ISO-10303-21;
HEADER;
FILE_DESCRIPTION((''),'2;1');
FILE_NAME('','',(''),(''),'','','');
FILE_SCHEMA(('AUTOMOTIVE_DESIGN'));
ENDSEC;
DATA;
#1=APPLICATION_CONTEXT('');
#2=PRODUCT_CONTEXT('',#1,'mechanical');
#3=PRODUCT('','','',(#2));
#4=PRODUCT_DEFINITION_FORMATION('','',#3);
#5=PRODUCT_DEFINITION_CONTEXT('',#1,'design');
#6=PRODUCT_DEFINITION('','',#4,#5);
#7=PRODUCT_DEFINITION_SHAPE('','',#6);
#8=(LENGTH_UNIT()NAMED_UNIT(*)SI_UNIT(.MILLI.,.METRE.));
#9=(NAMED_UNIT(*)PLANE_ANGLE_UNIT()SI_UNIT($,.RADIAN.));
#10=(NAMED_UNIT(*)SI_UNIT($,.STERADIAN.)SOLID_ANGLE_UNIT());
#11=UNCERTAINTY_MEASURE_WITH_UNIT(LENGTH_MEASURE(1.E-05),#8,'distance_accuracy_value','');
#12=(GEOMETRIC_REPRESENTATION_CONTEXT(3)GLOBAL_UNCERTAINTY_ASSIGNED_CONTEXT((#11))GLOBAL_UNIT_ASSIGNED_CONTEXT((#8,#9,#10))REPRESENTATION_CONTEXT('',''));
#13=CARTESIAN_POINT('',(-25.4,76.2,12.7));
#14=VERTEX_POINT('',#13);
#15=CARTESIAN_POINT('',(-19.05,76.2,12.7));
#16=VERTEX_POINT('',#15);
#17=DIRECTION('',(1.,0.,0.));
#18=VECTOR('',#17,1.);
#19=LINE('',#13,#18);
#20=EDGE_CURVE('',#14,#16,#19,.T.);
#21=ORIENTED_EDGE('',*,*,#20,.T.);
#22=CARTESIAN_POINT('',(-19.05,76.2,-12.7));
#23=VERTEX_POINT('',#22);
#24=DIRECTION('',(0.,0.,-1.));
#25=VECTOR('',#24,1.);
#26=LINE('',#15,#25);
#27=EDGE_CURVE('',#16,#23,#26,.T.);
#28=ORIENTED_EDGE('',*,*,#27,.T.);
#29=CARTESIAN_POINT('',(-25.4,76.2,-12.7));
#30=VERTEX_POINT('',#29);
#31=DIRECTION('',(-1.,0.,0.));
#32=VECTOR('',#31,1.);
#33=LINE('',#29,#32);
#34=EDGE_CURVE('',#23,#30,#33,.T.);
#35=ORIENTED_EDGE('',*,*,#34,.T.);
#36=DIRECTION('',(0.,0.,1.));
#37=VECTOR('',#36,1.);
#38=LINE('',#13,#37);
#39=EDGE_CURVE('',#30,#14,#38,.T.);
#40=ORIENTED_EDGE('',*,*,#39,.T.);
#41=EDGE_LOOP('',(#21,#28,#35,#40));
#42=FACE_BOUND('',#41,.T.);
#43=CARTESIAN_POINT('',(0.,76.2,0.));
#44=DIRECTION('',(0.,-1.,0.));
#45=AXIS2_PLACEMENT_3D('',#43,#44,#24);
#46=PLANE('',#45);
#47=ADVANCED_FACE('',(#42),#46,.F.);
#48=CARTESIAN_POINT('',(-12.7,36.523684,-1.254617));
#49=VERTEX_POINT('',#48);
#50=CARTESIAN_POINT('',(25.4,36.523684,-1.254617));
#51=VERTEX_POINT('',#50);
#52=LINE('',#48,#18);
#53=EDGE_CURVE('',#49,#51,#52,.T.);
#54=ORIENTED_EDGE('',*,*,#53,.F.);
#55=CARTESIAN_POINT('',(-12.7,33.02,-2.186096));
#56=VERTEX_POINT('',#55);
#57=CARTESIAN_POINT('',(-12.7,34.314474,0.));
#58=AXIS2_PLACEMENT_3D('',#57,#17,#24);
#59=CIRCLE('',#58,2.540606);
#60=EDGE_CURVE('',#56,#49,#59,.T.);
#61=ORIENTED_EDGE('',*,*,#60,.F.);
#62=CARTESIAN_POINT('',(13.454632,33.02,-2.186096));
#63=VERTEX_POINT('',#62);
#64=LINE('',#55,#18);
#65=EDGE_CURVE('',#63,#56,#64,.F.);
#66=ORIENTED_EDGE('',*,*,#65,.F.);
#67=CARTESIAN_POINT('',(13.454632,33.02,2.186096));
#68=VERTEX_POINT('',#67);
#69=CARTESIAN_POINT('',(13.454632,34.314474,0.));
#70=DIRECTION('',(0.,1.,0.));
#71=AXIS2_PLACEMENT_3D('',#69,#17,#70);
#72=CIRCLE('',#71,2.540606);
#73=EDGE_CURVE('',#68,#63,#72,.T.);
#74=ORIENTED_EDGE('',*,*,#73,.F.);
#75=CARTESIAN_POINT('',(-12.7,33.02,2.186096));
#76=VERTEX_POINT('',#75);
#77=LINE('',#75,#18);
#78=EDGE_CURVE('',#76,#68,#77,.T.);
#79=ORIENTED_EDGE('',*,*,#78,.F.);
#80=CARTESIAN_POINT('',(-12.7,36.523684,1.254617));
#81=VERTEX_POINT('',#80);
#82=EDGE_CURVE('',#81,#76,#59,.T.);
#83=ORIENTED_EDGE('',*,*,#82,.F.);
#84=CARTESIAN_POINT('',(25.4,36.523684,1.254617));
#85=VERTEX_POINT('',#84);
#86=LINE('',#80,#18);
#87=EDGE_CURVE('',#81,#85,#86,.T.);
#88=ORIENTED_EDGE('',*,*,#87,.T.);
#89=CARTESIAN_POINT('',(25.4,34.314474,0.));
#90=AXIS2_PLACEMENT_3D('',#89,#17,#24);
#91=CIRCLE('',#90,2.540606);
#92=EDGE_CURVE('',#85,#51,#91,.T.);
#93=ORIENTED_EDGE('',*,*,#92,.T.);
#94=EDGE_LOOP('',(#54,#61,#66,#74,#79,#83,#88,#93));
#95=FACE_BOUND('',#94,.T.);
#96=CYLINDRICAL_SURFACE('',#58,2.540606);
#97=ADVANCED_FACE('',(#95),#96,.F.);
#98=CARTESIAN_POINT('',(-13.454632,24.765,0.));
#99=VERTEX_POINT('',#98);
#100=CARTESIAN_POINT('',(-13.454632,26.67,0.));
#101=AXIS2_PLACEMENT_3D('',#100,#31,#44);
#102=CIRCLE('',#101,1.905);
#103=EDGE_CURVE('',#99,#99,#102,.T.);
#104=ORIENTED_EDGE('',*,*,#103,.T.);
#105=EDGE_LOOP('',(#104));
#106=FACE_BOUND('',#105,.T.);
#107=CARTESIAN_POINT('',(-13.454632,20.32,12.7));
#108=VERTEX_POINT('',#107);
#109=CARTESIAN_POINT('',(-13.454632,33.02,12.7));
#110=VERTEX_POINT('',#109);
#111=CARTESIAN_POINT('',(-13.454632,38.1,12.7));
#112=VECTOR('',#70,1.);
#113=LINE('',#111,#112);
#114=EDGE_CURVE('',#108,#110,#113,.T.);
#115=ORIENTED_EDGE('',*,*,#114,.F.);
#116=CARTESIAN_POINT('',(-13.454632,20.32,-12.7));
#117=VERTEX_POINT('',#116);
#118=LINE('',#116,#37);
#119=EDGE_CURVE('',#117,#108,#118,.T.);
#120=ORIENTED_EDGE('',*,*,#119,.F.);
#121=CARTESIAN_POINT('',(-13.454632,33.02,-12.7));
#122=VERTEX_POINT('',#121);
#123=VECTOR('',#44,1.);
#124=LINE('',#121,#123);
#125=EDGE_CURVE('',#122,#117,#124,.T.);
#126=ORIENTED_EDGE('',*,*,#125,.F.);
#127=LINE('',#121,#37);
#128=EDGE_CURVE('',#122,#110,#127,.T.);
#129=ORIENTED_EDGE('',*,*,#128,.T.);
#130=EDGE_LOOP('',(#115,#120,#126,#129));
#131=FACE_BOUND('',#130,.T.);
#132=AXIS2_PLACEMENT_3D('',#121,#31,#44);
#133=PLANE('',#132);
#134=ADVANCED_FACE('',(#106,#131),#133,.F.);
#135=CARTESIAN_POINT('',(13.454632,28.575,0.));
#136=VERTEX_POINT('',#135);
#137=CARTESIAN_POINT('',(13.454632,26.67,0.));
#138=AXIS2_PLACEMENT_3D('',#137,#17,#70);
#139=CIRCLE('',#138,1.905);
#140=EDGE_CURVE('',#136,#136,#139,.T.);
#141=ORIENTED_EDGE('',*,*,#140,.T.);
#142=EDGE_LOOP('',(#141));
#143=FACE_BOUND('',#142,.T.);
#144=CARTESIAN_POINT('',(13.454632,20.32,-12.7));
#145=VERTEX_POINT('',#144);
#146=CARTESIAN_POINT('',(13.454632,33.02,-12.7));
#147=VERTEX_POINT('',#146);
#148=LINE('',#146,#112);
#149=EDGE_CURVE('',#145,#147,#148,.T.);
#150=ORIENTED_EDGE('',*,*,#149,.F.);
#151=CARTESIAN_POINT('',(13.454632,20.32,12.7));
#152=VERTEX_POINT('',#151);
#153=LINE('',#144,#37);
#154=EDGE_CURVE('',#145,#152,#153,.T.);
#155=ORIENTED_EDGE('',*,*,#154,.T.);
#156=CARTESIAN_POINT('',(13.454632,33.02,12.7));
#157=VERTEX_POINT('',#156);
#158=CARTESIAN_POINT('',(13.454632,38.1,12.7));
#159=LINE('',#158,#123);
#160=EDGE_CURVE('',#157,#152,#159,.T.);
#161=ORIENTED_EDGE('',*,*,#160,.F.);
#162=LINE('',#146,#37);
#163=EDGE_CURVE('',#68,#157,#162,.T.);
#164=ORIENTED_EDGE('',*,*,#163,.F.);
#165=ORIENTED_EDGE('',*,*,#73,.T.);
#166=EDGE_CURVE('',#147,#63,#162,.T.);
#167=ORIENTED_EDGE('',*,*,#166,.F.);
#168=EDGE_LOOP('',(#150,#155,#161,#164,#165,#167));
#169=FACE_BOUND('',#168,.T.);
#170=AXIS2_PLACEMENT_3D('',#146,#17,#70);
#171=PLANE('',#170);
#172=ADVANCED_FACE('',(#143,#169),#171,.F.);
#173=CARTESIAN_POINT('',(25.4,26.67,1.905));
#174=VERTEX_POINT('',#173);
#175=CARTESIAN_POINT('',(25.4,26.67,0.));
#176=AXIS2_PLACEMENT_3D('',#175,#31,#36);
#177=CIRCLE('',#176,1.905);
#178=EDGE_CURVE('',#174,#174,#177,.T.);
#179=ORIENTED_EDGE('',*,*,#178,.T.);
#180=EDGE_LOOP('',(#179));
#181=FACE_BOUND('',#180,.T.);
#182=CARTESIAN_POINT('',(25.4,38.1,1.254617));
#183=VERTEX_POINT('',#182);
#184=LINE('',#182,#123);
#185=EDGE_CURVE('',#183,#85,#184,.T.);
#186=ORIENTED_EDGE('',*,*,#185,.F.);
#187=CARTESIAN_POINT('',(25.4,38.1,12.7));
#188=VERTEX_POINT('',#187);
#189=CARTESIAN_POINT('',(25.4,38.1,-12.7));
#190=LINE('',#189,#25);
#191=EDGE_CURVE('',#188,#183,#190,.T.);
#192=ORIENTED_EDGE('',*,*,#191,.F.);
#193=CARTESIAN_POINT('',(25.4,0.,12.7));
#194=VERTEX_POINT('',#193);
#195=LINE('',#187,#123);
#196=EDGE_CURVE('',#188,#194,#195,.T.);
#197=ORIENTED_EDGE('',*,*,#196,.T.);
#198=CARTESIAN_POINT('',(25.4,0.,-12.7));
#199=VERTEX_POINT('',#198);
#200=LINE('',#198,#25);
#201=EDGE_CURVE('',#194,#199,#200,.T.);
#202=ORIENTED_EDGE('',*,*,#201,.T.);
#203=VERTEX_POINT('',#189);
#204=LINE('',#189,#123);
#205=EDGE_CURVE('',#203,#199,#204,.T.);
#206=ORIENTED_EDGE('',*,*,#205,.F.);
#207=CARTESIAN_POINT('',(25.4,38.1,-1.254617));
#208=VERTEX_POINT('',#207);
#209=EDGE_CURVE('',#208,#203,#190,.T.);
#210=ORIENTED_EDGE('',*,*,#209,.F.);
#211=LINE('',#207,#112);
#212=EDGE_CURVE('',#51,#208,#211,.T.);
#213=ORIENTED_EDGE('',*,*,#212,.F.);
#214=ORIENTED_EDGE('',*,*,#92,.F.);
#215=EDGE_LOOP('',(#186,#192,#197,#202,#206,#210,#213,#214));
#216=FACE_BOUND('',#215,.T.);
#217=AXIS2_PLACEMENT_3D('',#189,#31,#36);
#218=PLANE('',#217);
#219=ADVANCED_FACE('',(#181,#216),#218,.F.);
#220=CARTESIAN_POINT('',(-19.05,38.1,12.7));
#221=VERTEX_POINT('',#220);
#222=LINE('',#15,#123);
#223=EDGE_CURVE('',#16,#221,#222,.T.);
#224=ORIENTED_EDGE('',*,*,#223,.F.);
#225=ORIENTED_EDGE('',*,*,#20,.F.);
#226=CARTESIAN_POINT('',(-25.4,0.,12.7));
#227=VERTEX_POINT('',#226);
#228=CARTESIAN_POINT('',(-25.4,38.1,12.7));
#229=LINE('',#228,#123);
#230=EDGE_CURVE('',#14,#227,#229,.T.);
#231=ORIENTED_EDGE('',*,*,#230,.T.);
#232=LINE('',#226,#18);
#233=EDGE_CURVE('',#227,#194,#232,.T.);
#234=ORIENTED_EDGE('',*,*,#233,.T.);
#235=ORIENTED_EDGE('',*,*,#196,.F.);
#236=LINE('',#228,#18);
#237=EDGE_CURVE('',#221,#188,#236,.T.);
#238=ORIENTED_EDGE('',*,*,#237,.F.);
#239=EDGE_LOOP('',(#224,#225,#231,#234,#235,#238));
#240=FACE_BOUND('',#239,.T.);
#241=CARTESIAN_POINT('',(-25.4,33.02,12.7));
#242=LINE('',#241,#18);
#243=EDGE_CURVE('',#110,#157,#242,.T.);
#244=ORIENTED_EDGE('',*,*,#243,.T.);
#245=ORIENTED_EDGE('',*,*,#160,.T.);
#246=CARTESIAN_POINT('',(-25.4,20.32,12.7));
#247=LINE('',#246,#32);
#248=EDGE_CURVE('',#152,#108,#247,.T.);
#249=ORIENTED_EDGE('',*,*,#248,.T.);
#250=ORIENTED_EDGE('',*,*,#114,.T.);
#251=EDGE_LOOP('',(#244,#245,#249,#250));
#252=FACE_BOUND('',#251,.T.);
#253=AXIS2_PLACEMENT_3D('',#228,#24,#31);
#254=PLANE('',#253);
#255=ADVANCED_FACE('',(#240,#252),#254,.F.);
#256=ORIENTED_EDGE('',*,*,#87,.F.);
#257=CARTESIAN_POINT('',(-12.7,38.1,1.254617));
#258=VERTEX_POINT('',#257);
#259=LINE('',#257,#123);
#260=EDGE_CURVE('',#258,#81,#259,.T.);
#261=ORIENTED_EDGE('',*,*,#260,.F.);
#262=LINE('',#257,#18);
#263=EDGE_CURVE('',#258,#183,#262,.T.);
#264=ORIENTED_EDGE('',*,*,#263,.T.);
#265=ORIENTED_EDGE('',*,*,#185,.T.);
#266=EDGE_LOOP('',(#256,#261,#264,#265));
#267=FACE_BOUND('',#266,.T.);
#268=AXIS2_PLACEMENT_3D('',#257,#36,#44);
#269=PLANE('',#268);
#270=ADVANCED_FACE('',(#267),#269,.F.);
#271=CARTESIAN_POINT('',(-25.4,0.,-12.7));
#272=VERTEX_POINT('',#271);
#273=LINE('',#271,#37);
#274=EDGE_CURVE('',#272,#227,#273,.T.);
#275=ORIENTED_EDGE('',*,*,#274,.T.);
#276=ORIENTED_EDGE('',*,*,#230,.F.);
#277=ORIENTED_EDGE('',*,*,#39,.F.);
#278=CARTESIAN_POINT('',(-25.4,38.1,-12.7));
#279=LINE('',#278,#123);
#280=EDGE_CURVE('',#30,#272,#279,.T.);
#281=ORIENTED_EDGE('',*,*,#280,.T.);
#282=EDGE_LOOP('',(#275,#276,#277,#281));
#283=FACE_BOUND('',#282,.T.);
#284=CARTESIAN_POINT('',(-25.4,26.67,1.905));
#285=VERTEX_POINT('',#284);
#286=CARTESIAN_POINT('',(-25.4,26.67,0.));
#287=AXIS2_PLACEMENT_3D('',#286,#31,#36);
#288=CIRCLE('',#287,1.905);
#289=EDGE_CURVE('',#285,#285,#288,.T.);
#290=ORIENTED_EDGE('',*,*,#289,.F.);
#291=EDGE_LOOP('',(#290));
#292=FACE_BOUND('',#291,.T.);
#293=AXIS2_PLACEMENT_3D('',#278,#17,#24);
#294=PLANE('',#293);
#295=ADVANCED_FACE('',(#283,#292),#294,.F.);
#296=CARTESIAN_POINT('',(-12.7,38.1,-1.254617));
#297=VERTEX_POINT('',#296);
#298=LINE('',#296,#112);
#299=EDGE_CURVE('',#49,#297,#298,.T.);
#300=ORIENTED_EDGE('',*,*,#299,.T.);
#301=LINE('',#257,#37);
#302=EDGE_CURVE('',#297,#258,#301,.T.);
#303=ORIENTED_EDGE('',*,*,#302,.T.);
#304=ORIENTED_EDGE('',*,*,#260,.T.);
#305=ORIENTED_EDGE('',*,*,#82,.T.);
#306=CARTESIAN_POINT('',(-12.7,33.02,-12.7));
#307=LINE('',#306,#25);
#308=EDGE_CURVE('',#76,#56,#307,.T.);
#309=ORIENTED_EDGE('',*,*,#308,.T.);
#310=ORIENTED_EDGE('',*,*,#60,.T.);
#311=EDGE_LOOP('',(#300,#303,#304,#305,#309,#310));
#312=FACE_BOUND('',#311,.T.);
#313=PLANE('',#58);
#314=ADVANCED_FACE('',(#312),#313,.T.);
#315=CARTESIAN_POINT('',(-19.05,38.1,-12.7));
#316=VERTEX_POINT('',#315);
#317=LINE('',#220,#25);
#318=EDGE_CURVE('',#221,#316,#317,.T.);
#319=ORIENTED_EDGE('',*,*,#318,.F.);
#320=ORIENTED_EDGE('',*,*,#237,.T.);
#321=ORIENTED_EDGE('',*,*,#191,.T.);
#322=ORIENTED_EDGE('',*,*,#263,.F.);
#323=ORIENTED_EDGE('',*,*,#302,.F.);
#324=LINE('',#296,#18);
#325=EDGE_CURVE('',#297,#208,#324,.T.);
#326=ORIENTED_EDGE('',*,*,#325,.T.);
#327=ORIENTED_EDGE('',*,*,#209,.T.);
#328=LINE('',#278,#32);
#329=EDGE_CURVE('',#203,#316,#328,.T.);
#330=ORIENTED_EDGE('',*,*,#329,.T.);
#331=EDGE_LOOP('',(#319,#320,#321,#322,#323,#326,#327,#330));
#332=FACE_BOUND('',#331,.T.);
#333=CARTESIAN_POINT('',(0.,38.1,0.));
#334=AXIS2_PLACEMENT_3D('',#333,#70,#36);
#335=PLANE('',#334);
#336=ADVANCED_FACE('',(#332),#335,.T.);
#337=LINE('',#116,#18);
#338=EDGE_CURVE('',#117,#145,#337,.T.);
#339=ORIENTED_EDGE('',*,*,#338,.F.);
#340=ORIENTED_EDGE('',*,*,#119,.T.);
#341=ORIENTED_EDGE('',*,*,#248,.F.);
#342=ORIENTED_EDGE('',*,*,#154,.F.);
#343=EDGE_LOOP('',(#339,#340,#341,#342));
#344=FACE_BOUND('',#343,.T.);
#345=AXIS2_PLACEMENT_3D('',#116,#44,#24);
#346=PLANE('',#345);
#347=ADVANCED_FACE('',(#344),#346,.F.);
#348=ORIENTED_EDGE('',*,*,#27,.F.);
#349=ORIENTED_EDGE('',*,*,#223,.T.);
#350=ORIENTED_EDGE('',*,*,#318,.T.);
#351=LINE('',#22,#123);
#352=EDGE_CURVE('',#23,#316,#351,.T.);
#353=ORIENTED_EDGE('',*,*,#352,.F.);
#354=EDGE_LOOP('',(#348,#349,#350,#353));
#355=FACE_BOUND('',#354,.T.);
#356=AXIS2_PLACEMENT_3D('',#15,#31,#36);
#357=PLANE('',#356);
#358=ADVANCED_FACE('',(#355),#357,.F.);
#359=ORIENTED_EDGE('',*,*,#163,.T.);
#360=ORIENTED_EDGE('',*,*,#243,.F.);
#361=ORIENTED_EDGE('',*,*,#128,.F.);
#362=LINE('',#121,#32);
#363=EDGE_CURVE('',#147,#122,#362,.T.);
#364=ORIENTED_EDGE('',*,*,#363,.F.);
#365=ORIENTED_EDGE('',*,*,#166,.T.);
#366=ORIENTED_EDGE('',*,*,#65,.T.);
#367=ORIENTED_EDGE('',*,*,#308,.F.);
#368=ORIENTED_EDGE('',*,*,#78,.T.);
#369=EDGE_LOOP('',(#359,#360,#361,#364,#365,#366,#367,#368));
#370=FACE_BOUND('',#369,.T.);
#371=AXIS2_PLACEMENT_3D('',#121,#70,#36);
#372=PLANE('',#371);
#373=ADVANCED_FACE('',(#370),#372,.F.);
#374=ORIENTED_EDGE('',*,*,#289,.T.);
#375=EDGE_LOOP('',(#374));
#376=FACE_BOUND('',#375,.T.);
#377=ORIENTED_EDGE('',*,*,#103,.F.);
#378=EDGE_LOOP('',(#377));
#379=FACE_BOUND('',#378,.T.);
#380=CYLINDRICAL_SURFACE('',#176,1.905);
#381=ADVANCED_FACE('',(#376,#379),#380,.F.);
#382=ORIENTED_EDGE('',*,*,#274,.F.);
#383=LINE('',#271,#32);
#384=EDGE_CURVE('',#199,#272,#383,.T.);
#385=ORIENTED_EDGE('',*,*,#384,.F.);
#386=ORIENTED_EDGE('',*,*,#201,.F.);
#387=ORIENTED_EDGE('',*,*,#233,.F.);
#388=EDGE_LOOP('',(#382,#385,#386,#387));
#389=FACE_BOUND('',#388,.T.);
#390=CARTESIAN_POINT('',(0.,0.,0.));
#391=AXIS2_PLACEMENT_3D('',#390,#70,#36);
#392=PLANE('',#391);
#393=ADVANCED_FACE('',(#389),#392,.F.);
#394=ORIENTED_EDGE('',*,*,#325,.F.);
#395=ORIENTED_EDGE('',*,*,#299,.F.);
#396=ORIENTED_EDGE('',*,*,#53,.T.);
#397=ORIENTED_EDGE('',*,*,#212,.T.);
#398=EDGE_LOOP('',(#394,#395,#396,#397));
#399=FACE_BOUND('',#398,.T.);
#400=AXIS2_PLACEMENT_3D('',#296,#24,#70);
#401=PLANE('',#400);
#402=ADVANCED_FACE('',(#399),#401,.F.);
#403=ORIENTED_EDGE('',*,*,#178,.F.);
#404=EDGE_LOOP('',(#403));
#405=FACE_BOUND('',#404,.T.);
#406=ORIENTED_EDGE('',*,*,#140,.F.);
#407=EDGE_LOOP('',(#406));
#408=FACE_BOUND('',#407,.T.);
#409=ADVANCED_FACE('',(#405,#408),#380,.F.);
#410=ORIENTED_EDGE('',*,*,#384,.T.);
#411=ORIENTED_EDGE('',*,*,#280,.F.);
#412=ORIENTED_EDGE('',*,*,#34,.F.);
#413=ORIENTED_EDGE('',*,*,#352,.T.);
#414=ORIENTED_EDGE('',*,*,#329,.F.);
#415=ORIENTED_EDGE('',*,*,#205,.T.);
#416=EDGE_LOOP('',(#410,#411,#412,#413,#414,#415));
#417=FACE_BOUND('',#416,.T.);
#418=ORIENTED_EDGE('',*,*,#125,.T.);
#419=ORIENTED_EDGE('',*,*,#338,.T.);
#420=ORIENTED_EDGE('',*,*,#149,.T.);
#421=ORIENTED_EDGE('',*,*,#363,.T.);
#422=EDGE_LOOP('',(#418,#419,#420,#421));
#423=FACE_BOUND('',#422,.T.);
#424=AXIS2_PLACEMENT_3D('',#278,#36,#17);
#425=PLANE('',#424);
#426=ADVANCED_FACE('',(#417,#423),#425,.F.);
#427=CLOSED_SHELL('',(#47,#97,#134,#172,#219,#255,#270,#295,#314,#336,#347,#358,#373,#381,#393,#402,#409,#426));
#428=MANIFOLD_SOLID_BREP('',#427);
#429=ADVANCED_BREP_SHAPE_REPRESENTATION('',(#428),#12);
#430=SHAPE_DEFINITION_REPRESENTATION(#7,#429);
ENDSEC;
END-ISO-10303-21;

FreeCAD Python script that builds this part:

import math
import FreeCAD as App
import Part
import Sketcher
from FreeCAD import Vector
Q = App.Units.Quantity


def add_polygon(sketch, points):
    """Adds a closed chain of lines whose ends are joined by coincident constraints."""
    first, n = sketch.GeometryCount, len(points)
    for a, b in zip(points, points[1:] + points[:1]):
        sketch.addGeometry(Part.LineSegment(App.Vector(*a, 0), App.Vector(*b, 0)), False)
    for i in range(n):
        sketch.addConstraint(Sketcher.Constraint("Coincident", first + i, 2, first + (i + 1) % n, 1))

doc = App.newDocument("Part")
body = doc.addObject("PartDesign::Body", "Body")

# Sketch on XZ plane
sketch1 = body.newObject("Sketcher::SketchObject", "Sketch")
sketch1.AttachmentSupport = (doc.getObject("XZ_Plane"), [""])
sketch1.MapMode = "FlatFace"
add_polygon(sketch1, [(-25.4, -12.7), (-25.4, 12.7), (25.4, 12.7), (25.4, -12.7)])  # lines 0-3
sketch1.addConstraint([
    Sketcher.Constraint("Vertical", 0),
    Sketcher.Constraint("Horizontal", 1),
    Sketcher.Constraint("Vertical", 2),
    Sketcher.Constraint("Horizontal", 3),
    Sketcher.Constraint("Symmetric", 0, 2, 2, 2, -1, 1),
    Sketcher.Constraint("DistanceX", 1, 1, 1, 2, Q("2 in")),
    Sketcher.Constraint("DistanceY", 0, 1, 0, 2, Q("1 in")),
])
pad1 = body.newObject("PartDesign::Pad", "Pad")
pad1.Profile = sketch1
pad1.Length = Q("1.5 in")
pad1.Reversed = True

# Sketch on XY plane
sketch2 = body.newObject("Sketcher::SketchObject", "Sketch001")
sketch2.AttachmentSupport = (doc.getObject("XY_Plane"), [""])
sketch2.MapMode = "FlatFace"
sketch2.AttachmentOffset = App.Placement(Vector(0, 0, 0.5 * 25.4), App.Rotation())
add_polygon(sketch2, [(-13.454632, 33.02), (-13.454632, 20.32), (13.454632, 20.32), (13.454632, 33.02)])  # lines 0-3
sketch2.addConstraint([
    Sketcher.Constraint("Vertical", 0),
    Sketcher.Constraint("Horizontal", 1),
    Sketcher.Constraint("Vertical", 2),
    Sketcher.Constraint("Horizontal", 3),
    Sketcher.Constraint("DistanceY", 0, 2, 0, 1, Q("0.5 in")),
    Sketcher.Constraint("DistanceY", -1, 1, 0, 2, Q("0.8 in")),
    Sketcher.Constraint("DistanceX", 1, 1, 1, 2, Q("26.909263 mm")),
    Sketcher.Constraint("DistanceX", 0, 2, -1, 1, Q("13.454632 mm")),
])
pocket1 = body.newObject("PartDesign::Pocket", "Pocket")
pocket1.Profile = sketch2
pocket1.Type = "ThroughAll"
pocket1.Midplane = True

# Sketch on YZ plane
sketch3 = body.newObject("Sketcher::SketchObject", "Sketch002")
sketch3.AttachmentSupport = (doc.getObject("YZ_Plane"), [""])
sketch3.MapMode = "FlatFace"
sketch3.AttachmentOffset = App.Placement(Vector(0, 0, -1 * 25.4), App.Rotation())
sketch3.addGeometry(Part.Circle(Vector(26.67, 0, 0), Vector(0, 0, 1), 1.905), False)
sketch3.addConstraint([
    Sketcher.Constraint("PointOnObject", 0, 3, -1),
    Sketcher.Constraint("Diameter", 0, Q("0.15 in")),
    Sketcher.Constraint("DistanceX", -1, 1, 0, 3, Q("1.05 in")),
])
pocket2 = body.newObject("PartDesign::Pocket", "Pocket001")
pocket2.Profile = sketch3
pocket2.Type = "ThroughAll"
pocket2.Midplane = True

# Sketch on XZ plane
sketch4 = body.newObject("Sketcher::SketchObject", "Sketch003")
sketch4.AttachmentSupport = (doc.getObject("XZ_Plane"), [""])
sketch4.MapMode = "FlatFace"
sketch4.AttachmentOffset = App.Placement(Vector(0, 0, -1.5 * 25.4), App.Rotation())
add_polygon(sketch4, [(-25.4, -12.7), (-25.4, 12.7), (-19.05, 12.7), (-19.05, -12.7)])  # lines 0-3
sketch4.addConstraint([
    Sketcher.Constraint("Vertical", 0),
    Sketcher.Constraint("Horizontal", 1),
    Sketcher.Constraint("Vertical", 2),
    Sketcher.Constraint("Horizontal", 3),
    Sketcher.Constraint("DistanceY", 0, 1, 0, 2, Q("1 in")),
    Sketcher.Constraint("DistanceX", 0, 2, -1, 1, Q("1 in")),
    Sketcher.Constraint("DistanceX", 1, 1, 1, 2, Q("0.25 in")),
    Sketcher.Constraint("DistanceY", -1, 1, 0, 2, Q("0.5 in")),
])
pad2 = body.newObject("PartDesign::Pad", "Pad001")
pad2.Profile = sketch4
pad2.Length = Q("1.5 in")
pad2.Reversed = True

# Sketch on YZ plane
sketch5 = body.newObject("Sketcher::SketchObject", "Sketch004")
sketch5.AttachmentSupport = (doc.getObject("YZ_Plane"), [""])
sketch5.MapMode = "FlatFace"
sketch5.AttachmentOffset = App.Placement(Vector(0, 0, 1 * 25.4), App.Rotation())
sketch5.addGeometry([
    Part.LineSegment(Vector(38.1, -1.254617, 0), Vector(38.1, 1.254617, 0)),
    Part.LineSegment(Vector(38.1, 1.254617, 0), Vector(36.523684, 1.254617, 0)),
    Part.ArcOfCircle(Part.Circle(Vector(34.314474, 0, 0), Vector(0, 0, 1), 2.540606), math.radians(29.592375), math.radians(330.407625)),
    Part.LineSegment(Vector(36.523684, -1.254617, 0), Vector(38.1, -1.254617, 0)),
], False)
sketch5.addConstraint([
    Sketcher.Constraint("Coincident", 0, 2, 1, 1),
    Sketcher.Constraint("Coincident", 1, 2, 2, 1),
    Sketcher.Constraint("Coincident", 2, 2, 3, 1),
    Sketcher.Constraint("Coincident", 3, 2, 0, 1),
    Sketcher.Constraint("Vertical", 0),
    Sketcher.Constraint("Horizontal", 1),
    Sketcher.Constraint("Horizontal", 3),
    Sketcher.Constraint("Symmetric", 1, 2, 2, 2, -1),
    Sketcher.Constraint("DistanceX", -1, 1, 0, 2, Q("1.5 in")),
    Sketcher.Constraint("Radius", 2, Q("2.540606 mm")),
    Sketcher.Constraint("DistanceX", 1, 2, 1, 1, Q("1.576316 mm")),
    Sketcher.Constraint("DistanceY", 0, 1, 0, 2, Q("2.509235 mm")),
])
pocket3 = body.newObject("PartDesign::Pocket", "Pocket002")
pocket3.Profile = sketch5
pocket3.Length = Q("1.5 in")

doc.recompute()
